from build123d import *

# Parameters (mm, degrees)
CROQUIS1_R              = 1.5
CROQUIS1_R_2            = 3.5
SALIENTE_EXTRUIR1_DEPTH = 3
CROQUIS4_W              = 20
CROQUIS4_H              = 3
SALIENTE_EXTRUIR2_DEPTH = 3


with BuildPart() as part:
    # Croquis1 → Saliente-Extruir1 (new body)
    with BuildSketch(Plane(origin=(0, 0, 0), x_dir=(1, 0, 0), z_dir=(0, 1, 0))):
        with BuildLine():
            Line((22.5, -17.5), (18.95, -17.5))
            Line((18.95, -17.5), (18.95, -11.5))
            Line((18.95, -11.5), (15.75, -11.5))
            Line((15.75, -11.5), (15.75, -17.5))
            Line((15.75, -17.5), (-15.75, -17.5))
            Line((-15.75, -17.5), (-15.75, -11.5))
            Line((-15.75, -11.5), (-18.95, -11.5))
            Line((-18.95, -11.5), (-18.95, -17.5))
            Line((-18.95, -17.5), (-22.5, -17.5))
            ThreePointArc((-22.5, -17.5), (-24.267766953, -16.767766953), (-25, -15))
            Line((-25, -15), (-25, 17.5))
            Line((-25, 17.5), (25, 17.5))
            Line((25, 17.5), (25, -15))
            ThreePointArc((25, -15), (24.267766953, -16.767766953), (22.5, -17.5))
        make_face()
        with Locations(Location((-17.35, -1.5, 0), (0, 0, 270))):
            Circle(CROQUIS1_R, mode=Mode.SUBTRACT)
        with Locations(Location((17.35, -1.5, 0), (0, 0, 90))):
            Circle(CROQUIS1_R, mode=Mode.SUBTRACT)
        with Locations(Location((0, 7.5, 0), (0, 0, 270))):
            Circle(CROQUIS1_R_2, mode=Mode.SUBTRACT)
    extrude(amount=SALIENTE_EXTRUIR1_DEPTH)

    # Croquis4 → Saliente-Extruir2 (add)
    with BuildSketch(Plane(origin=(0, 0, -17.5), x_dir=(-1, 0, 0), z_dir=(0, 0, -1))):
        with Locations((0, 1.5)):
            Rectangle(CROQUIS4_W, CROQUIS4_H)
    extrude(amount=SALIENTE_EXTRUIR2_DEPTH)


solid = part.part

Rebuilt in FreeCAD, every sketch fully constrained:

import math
import FreeCAD as App
import Part
import Sketcher
from FreeCAD import Vector
Q = App.Units.Quantity


def add_polygon(sketch, points):
    """Adds a closed chain of lines whose ends are joined by coincident constraints."""
    first, n = sketch.GeometryCount, len(points)
    for a, b in zip(points, points[1:] + points[:1]):
        sketch.addGeometry(Part.LineSegment(App.Vector(*a, 0), App.Vector(*b, 0)), False)
    for i in range(n):
        sketch.addConstraint(Sketcher.Constraint("Coincident", first + i, 2, first + (i + 1) % n, 1))

doc = App.newDocument("Part")
params = doc.addObject("Spreadsheet::Sheet", "Params")
for row, (alias, value) in enumerate([
    ("sketch1_diameter", "3 mm"),
    ("sketch1_diameter2", "7 mm"),
    ("sketch1_radius", "2.5 mm"),
    ("sketch1_width", "50 mm"),
    ("sketch1_height", "6 mm"),
    ("pad1_length", "3 mm"),
    ("sketch2_width", "20 mm"),
    ("sketch2_height", "3 mm"),
    ("pad2_length", "3 mm"),
], start=1):
    params.set(f"A{row}", alias)
    params.set(f"B{row}", "=" + value)
    params.setAlias(f"B{row}", alias)

body = doc.addObject("PartDesign::Body", "Body")

# Sketch on XZ plane
sketch1 = doc.addObject("Sketcher::SketchObject", "Sketch")
body.addObject(sketch1)
sketch1.AttachmentSupport = (doc.XZ_Plane, [""])
sketch1.MapMode = "FlatFace"
sketch1.addGeometry(Part.LineSegment(Vector(18.95, 17.5, 0), Vector(22.5, 17.5, 0)), False)
sketch1.addGeometry(Part.ArcOfCircle(Part.Circle(Vector(22.5, 15, 0), Vector(0, 0, 1), 2.5), math.radians(0), math.radians(90)), False)
sketch1.addGeometry(Part.LineSegment(Vector(25, 15, 0), Vector(25, -17.5, 0)), False)
sketch1.addGeometry(Part.LineSegment(Vector(25, -17.5, 0), Vector(-25, -17.5, 0)), False)
sketch1.addGeometry(Part.LineSegment(Vector(-25, -17.5, 0), Vector(-25, 15, 0)), False)
sketch1.addGeometry(Part.ArcOfCircle(Part.Circle(Vector(-22.5, 15, 0), Vector(0, 0, 1), 2.5), math.radians(90), math.radians(180)), False)
sketch1.addGeometry(Part.LineSegment(Vector(-22.5, 17.5, 0), Vector(-18.95, 17.5, 0)), False)
sketch1.addGeometry(Part.LineSegment(Vector(-18.95, 17.5, 0), Vector(-18.95, 11.5, 0)), False)
sketch1.addGeometry(Part.LineSegment(Vector(-18.95, 11.5, 0), Vector(-15.75, 11.5, 0)), False)
sketch1.addGeometry(Part.LineSegment(Vector(-15.75, 11.5, 0), Vector(-15.75, 17.5, 0)), False)
sketch1.addGeometry(Part.LineSegment(Vector(-15.75, 17.5, 0), Vector(15.75, 17.5, 0)), False)
sketch1.addGeometry(Part.LineSegment(Vector(15.75, 17.5, 0), Vector(15.75, 11.5, 0)), False)
sketch1.addGeometry(Part.LineSegment(Vector(15.75, 11.5, 0), Vector(18.95, 11.5, 0)), False)
sketch1.addGeometry(Part.LineSegment(Vector(18.95, 11.5, 0), Vector(18.95, 17.5, 0)), False)
sketch1.addGeometry(Part.Circle(Vector(17.35, 1.5, 0), Vector(0, 0, 1), 1.5), False)
sketch1.addGeometry(Part.Circle(Vector(-17.35, 1.5, 0), Vector(0, 0, 1), 1.5), False)
sketch1.addGeometry(Part.Circle(Vector(0, -7.5, 0), Vector(0, 0, 1), 3.5), False)
sketch1.addConstraint(Sketcher.Constraint("Tangent", 0, 2, 1, 2))
sketch1.addConstraint(Sketcher.Constraint("Tangent", 1, 1, 2, 1))
sketch1.addConstraint(Sketcher.Constraint("Coincident", 2, 2, 3, 1))
sketch1.addConstraint(Sketcher.Constraint("Coincident", 3, 2, 4, 1))
sketch1.addConstraint(Sketcher.Constraint("Tangent", 4, 2, 5, 2))
sketch1.addConstraint(Sketcher.Constraint("Tangent", 5, 1, 6, 1))
sketch1.addConstraint(Sketcher.Constraint("Coincident", 6, 2, 7, 1))
sketch1.addConstraint(Sketcher.Constraint("Coincident", 7, 2, 8, 1))
sketch1.addConstraint(Sketcher.Constraint("Coincident", 8, 2, 9, 1))
sketch1.addConstraint(Sketcher.Constraint("Coincident", 9, 2, 10, 1))
sketch1.addConstraint(Sketcher.Constraint("Coincident", 10, 2, 11, 1))
sketch1.addConstraint(Sketcher.Constraint("Coincident", 11, 2, 12, 1))
sketch1.addConstraint(Sketcher.Constraint("Coincident", 12, 2, 13, 1))
sketch1.addConstraint(Sketcher.Constraint("Coincident", 13, 2, 0, 1))
sketch1.addConstraint(Sketcher.Constraint("Horizontal", 0))
sketch1.addConstraint(Sketcher.Constraint("Vertical", 2))
sketch1.addConstraint(Sketcher.Constraint("Horizontal", 3))
sketch1.addConstraint(Sketcher.Constraint("Vertical", 4))
sketch1.addConstraint(Sketcher.Constraint("Horizontal", 6))
sketch1.addConstraint(Sketcher.Constraint("Vertical", 7))
sketch1.addConstraint(Sketcher.Constraint("Horizontal", 8))
sketch1.addConstraint(Sketcher.Constraint("Vertical", 9))
sketch1.addConstraint(Sketcher.Constraint("Horizontal", 10))
sketch1.addConstraint(Sketcher.Constraint("Vertical", 11))
sketch1.addConstraint(Sketcher.Constraint("Horizontal", 12))
sketch1.addConstraint(Sketcher.Constraint("Vertical", 13))
sketch1.addConstraint(Sketcher.Constraint("Equal", 1, 5))
sketch1.addConstraint(Sketcher.Constraint("Equal", 14, 15))
sketch1.addConstraint(Sketcher.Constraint("Symmetric", 1, 3, 5, 3, -2))
sketch1.addConstraint(Sketcher.Constraint("Symmetric", 14, 3, 15, 3, -2))
sketch1.addConstraint(Sketcher.Constraint("Symmetric", 8, 2, 11, 2, -2))
sketch1.addConstraint(Sketcher.Constraint("PointOnObject", 16, 3, -2))
sketch1.addConstraint(Sketcher.Constraint("Horizontal", 6, 2, 9, 2))
sketch1.addConstraint(Sketcher.Constraint("Equal", 0, 6))
sketch1.addConstraint(Sketcher.Constraint("Diameter", 14, Q("3 mm")))
sketch1.addConstraint(Sketcher.Constraint("Diameter", 16, Q("7 mm")))
sketch1.addConstraint(Sketcher.Constraint("Radius", 1, Q("2.5 mm")))
sketch1.addConstraint(Sketcher.Constraint("DistanceX", 3, 2, 3, 1, Q("50 mm")))
sketch1.addConstraint(Sketcher.Constraint("DistanceY", 7, 2, 7, 1, Q("6 mm")))
sketch1.addConstraint(Sketcher.Constraint("DistanceX", 8, 1, 8, 2, Q("3.2 mm")))
sketch1.addConstraint(Sketcher.Constraint("DistanceX", 10, 1, 10, 2, Q("31.5 mm")))
sketch1.addConstraint(Sketcher.Constraint("DistanceY", 2, 2, 2, 1, Q("32.5 mm")))
sketch1.addConstraint(Sketcher.Constraint("DistanceY", -1, 1, 1, 3, Q("15 mm")))
sketch1.addConstraint(Sketcher.Constraint("DistanceY", 16, 3, 14, 3, Q("9 mm")))
sketch1.addConstraint(Sketcher.Constraint("DistanceY", 14, 3, 0, 2, Q("16 mm")))
sketch1.addConstraint(Sketcher.Constraint("DistanceX", 15, 3, 14, 3, Q("34.7 mm")))
sketch1.setExpression("Constraints[34]", "Params.sketch1_diameter")
sketch1.setExpression("Constraints[35]", "Params.sketch1_diameter2")
sketch1.setExpression("Constraints[36]", "Params.sketch1_radius")
sketch1.setExpression("Constraints[37]", "Params.sketch1_width")
sketch1.setExpression("Constraints[38]", "Params.sketch1_height")
pad1 = doc.addObject("PartDesign::Pad", "Pad")
body.addObject(pad1)
pad1.Profile = sketch1
pad1.setExpression("Length", "Params.pad1_length")
pad1.Reversed = True

# Sketch on XY plane
sketch2 = doc.addObject("Sketcher::SketchObject", "Sketch001")
body.addObject(sketch2)
sketch2.AttachmentSupport = (doc.XY_Plane, [""])
sketch2.MapMode = "FlatFace"
sketch2.AttachmentOffset = App.Placement(Vector(0, 0, -17.5), App.Rotation())
add_polygon(sketch2, [(10, 3), (10, 0), (-10, 0), (-10, 3)])  # lines 0-3
sketch2.addConstraint(Sketcher.Constraint("Vertical", 0))
sketch2.addConstraint(Sketcher.Constraint("Horizontal", 1))
sketch2.addConstraint(Sketcher.Constraint("Vertical", 2))
sketch2.addConstraint(Sketcher.Constraint("Horizontal", 3))
sketch2.addConstraint(Sketcher.Constraint("Symmetric", 0, 2, 1, 2, -1, 1))
sketch2.addConstraint(Sketcher.Constraint("DistanceX", 1, 2, 1, 1, Q("20 mm")))
sketch2.addConstraint(Sketcher.Constraint("DistanceY", 0, 2, 0, 1, Q("3 mm")))
sketch2.setExpression("Constraints[9]", "Params.sketch2_width")
sketch2.setExpression("Constraints[10]", "Params.sketch2_height")
pad2 = doc.addObject("PartDesign::Pad", "Pad001")
body.addObject(pad2)
pad2.Profile = sketch2
pad2.setExpression("Length", "Params.pad2_length")
pad2.Reversed = True

doc.recompute()
